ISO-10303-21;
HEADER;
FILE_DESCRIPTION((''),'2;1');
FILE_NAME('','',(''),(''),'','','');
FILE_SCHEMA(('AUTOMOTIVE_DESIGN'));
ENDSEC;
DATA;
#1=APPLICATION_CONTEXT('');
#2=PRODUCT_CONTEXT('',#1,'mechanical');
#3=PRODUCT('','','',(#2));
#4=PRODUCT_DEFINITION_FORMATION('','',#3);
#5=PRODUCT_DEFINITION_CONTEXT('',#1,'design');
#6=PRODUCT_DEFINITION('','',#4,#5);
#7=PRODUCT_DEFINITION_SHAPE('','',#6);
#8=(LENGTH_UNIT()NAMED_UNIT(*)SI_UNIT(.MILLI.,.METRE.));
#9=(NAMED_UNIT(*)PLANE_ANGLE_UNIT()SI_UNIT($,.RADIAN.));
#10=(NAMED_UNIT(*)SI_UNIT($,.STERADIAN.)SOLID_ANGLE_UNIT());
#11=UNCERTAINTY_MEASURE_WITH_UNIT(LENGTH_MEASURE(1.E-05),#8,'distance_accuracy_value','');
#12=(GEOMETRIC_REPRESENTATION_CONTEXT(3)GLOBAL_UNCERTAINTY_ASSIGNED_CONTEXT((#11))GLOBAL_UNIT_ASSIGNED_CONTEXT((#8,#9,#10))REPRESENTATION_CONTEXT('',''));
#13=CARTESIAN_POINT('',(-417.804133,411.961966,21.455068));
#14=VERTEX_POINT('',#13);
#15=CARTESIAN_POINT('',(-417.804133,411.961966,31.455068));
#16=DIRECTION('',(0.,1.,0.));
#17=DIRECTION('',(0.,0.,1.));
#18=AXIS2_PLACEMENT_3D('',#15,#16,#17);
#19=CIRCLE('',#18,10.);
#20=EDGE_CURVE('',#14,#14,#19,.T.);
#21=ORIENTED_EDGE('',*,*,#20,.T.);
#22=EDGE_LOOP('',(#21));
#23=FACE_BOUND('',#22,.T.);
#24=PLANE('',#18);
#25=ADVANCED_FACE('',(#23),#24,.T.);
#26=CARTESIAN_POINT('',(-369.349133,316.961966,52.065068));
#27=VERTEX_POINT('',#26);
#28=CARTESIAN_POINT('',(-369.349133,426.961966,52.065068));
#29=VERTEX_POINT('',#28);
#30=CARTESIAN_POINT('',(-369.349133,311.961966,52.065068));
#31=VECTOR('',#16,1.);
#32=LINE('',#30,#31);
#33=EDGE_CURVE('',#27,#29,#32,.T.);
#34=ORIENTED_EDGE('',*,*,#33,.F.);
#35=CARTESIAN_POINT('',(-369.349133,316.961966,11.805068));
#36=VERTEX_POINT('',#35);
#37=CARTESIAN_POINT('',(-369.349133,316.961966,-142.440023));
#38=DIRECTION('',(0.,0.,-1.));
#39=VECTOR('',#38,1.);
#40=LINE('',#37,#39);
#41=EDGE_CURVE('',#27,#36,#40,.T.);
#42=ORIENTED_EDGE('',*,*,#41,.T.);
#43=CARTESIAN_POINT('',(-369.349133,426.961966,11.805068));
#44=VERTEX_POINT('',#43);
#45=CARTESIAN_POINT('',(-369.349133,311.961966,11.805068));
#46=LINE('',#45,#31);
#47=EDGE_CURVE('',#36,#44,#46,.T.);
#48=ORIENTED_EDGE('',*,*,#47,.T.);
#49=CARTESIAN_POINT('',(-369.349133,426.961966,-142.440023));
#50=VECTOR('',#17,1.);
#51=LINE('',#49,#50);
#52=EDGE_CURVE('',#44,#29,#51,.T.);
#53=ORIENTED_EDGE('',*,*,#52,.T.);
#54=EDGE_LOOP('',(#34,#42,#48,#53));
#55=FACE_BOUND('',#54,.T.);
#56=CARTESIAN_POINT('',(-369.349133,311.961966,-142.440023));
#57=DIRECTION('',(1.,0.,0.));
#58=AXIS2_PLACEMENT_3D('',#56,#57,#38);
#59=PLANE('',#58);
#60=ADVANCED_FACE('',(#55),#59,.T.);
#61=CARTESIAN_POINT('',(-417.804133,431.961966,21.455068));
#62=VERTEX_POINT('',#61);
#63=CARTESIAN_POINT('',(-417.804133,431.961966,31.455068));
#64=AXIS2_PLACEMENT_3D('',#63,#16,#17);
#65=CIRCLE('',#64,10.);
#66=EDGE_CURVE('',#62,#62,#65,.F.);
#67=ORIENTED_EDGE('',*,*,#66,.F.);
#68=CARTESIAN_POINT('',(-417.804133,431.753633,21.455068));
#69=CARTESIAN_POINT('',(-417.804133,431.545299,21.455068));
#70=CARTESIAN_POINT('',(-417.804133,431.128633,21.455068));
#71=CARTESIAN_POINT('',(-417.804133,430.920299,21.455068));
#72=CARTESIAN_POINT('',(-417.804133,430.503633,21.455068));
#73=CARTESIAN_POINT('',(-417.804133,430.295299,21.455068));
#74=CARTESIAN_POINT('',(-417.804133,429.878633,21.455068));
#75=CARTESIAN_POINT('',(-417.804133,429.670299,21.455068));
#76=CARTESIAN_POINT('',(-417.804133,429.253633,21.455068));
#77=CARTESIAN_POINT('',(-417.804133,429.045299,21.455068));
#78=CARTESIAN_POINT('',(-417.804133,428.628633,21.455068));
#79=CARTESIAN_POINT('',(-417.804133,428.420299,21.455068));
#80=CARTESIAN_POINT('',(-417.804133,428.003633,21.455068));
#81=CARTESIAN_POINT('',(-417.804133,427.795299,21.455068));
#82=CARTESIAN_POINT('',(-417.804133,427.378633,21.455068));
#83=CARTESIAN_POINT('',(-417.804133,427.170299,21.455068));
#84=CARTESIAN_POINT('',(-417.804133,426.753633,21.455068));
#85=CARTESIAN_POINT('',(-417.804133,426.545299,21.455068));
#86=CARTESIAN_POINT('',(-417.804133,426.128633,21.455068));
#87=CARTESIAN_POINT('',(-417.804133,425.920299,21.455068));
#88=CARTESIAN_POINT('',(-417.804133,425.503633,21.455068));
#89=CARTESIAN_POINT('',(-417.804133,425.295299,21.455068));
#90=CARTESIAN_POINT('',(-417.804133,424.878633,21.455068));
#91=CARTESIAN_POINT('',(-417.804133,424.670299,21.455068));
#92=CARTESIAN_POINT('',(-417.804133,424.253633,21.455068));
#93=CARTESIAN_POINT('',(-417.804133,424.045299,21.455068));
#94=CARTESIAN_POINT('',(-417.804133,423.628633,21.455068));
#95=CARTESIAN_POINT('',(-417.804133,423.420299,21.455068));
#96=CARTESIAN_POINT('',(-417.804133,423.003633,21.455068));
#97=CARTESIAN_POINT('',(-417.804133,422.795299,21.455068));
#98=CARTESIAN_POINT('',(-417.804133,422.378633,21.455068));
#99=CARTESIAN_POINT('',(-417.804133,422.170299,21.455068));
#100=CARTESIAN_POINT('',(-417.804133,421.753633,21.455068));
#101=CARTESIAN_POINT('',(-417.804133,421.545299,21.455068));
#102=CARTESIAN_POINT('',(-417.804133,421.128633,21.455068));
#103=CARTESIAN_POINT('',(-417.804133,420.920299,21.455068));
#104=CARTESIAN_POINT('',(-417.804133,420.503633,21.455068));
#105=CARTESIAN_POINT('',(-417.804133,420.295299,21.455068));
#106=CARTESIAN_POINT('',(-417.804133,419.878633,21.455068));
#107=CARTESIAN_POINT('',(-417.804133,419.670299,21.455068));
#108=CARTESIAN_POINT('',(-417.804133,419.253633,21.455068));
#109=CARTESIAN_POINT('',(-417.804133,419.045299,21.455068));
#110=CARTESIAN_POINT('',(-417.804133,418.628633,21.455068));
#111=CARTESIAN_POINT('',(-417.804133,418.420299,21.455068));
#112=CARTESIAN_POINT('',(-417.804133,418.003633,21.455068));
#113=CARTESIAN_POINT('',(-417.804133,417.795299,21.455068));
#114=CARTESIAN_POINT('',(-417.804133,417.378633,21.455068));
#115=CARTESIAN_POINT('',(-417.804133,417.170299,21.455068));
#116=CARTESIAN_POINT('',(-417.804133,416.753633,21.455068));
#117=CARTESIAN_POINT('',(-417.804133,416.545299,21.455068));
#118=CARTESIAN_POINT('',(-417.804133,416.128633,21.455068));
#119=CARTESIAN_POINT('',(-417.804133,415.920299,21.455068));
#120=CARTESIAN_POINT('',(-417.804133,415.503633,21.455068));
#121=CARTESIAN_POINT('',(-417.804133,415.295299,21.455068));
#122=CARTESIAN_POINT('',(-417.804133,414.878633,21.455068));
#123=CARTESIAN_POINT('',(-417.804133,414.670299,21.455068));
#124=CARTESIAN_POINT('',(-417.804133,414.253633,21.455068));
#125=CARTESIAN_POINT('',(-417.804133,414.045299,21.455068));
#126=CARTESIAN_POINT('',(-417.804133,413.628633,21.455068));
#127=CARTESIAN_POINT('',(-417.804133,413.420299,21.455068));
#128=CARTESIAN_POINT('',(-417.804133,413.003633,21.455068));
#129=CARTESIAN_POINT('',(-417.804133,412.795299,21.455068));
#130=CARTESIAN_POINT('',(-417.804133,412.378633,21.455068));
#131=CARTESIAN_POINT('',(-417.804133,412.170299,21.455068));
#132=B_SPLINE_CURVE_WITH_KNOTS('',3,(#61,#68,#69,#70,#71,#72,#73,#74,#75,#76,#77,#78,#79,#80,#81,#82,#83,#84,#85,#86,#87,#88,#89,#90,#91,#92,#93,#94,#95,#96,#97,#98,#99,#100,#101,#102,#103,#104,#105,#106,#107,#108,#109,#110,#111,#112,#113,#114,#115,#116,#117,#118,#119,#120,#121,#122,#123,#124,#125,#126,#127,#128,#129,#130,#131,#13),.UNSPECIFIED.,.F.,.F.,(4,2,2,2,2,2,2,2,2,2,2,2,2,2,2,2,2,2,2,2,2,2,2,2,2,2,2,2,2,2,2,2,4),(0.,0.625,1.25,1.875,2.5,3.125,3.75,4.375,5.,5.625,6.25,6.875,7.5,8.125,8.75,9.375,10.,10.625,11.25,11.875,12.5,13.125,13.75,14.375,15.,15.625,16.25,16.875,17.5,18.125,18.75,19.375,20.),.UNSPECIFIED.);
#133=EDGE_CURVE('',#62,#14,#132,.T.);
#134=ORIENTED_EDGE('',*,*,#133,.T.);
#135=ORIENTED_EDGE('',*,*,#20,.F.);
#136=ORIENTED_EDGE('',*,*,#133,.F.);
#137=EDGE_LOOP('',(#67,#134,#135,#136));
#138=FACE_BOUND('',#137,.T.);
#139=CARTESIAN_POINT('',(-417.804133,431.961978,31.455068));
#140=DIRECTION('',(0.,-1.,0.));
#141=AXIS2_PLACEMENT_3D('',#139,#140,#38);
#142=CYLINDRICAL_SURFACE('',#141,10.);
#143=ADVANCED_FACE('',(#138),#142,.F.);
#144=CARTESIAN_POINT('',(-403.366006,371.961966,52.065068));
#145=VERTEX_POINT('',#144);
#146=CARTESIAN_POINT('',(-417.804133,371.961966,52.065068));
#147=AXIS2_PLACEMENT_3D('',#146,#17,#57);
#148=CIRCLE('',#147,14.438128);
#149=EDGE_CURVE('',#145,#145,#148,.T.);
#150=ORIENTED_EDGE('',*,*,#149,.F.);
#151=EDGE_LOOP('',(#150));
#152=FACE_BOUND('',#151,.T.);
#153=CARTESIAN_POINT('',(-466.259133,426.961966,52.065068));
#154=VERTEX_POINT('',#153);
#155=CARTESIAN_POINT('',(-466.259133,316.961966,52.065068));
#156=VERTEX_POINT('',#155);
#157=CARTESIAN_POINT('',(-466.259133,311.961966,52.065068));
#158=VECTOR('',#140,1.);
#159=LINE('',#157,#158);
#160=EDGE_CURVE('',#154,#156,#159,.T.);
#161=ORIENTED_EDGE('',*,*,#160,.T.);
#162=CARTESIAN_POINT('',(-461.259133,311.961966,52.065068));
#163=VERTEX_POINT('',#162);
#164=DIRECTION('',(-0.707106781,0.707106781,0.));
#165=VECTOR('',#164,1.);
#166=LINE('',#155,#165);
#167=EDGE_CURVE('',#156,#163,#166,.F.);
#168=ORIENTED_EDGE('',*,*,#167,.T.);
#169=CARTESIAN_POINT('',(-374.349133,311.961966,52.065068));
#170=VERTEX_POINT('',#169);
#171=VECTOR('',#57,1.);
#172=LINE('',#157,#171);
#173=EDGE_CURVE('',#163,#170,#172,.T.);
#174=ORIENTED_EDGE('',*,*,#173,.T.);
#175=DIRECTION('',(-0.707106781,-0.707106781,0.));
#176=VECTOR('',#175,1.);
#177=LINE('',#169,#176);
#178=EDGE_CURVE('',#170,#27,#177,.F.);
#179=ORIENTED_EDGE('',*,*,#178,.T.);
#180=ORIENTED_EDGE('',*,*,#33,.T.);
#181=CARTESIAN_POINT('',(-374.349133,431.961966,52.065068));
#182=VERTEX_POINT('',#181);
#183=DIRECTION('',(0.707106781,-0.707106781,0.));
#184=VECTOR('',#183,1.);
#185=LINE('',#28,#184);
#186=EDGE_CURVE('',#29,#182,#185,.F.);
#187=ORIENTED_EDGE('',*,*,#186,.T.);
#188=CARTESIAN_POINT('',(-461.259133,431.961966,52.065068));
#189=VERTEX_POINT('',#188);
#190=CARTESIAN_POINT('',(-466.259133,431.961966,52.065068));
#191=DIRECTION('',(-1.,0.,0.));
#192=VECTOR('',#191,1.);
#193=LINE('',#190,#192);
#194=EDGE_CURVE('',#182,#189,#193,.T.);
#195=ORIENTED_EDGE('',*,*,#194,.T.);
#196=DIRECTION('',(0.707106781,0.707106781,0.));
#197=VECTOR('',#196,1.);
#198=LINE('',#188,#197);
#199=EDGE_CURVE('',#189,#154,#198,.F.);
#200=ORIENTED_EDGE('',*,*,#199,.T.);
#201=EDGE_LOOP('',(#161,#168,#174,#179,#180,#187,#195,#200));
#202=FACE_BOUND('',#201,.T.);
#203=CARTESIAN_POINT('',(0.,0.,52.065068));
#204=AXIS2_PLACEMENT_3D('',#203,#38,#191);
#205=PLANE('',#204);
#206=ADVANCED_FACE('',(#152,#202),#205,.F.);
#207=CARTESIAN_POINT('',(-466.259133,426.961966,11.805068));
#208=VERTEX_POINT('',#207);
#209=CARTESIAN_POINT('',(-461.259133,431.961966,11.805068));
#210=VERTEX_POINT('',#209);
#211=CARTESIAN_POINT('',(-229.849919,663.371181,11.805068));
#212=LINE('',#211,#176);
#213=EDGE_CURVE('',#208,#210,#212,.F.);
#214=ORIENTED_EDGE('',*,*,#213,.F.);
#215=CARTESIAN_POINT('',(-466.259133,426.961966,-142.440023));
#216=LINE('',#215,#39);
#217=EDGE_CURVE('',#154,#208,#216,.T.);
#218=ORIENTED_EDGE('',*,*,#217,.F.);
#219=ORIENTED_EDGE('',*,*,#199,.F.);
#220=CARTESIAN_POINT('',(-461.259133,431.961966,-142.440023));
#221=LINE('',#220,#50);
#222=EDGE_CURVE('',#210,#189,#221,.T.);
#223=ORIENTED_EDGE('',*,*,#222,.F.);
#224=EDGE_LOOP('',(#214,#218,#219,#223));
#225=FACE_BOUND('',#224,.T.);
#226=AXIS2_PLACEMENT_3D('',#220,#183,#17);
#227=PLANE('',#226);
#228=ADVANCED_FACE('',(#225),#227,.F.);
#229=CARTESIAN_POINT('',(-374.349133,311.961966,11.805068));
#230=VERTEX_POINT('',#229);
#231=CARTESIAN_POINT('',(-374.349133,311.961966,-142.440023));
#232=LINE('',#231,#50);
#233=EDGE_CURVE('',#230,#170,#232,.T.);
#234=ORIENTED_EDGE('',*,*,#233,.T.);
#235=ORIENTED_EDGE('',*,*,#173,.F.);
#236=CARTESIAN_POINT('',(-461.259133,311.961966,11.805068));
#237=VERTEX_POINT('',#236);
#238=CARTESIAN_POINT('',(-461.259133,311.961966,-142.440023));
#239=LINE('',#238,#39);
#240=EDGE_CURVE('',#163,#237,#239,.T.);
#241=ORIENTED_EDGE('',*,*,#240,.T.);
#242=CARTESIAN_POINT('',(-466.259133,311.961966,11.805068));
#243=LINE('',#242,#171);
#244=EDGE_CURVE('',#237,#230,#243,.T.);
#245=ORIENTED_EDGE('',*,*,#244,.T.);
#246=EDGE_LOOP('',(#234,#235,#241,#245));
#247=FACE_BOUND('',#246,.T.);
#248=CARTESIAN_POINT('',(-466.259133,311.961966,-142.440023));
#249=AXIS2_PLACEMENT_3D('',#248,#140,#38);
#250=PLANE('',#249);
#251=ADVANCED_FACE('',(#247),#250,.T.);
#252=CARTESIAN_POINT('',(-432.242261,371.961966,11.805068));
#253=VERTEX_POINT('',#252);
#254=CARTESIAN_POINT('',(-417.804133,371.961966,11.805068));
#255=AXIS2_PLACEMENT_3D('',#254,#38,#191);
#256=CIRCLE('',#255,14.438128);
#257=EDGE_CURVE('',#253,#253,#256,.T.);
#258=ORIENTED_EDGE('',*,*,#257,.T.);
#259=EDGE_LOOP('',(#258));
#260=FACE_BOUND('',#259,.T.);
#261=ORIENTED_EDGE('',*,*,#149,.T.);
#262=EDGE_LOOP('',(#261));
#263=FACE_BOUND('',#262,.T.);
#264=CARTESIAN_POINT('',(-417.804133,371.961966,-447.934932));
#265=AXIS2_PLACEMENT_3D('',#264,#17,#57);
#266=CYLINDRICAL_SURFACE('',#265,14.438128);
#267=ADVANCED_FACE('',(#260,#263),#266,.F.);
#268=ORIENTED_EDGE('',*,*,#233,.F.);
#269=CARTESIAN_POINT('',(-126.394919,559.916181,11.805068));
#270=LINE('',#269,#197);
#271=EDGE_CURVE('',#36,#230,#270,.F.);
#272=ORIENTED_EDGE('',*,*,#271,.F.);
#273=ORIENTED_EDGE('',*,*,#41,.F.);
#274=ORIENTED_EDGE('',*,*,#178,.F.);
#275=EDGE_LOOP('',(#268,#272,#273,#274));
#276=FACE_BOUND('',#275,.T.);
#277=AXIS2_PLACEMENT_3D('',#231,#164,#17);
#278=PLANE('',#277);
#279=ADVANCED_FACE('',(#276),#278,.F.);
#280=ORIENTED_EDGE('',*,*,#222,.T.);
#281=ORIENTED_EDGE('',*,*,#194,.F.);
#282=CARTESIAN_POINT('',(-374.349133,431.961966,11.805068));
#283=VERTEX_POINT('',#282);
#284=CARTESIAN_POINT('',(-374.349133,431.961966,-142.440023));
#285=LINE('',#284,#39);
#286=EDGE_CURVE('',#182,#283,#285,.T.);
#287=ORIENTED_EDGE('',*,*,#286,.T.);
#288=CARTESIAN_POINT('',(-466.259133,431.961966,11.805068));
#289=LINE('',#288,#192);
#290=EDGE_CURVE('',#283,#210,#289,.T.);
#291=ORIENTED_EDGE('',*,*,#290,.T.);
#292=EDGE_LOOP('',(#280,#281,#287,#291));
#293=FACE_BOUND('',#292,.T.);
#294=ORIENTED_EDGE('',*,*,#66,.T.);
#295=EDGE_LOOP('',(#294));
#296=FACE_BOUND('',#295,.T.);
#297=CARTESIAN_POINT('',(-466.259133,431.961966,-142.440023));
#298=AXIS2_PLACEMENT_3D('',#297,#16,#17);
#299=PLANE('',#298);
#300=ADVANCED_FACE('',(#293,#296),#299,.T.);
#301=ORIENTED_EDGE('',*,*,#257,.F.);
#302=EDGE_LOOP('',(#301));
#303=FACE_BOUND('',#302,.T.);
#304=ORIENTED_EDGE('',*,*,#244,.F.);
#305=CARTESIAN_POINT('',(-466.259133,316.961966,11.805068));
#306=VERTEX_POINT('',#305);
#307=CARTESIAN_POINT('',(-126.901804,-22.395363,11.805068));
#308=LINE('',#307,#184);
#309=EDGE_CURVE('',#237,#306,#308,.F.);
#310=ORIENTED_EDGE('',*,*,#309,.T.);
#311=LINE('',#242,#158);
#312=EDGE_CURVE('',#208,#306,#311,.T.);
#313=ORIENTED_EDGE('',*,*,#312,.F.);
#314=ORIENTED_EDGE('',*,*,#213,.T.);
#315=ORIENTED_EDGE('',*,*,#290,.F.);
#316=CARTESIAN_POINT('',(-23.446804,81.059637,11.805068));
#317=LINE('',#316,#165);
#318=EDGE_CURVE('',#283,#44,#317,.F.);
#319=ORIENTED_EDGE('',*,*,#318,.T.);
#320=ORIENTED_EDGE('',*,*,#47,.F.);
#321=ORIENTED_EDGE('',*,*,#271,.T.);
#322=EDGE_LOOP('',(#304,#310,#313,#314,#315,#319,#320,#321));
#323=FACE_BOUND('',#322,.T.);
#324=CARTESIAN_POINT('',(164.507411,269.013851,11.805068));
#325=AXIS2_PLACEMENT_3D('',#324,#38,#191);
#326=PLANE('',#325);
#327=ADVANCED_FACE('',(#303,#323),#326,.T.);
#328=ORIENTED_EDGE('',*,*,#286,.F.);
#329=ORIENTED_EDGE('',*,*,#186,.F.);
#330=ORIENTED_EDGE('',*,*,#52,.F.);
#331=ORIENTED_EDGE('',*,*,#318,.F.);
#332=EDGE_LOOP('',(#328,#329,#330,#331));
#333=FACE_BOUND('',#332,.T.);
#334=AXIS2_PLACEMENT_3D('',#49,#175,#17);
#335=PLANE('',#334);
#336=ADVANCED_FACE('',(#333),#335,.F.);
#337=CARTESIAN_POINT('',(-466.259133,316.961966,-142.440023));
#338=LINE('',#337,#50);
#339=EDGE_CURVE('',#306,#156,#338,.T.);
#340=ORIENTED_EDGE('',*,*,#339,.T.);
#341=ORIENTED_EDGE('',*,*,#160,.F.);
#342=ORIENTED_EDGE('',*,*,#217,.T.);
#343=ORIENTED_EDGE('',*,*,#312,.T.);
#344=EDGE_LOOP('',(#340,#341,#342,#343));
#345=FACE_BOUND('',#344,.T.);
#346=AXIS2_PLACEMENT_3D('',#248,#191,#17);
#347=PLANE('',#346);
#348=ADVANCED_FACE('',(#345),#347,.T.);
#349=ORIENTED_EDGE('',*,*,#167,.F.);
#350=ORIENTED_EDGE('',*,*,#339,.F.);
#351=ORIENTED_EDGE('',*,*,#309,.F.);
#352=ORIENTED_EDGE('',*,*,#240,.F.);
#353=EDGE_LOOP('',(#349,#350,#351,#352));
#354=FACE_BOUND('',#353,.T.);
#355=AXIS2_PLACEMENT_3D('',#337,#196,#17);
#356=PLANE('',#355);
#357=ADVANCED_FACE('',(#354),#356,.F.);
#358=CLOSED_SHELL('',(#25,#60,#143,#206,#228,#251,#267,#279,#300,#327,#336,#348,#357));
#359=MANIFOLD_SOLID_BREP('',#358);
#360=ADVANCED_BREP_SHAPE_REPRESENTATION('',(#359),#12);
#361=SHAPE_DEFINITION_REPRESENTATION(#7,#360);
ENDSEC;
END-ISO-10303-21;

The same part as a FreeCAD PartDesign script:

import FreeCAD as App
import Part
import Sketcher
from FreeCAD import Vector


def edges_at(feature, points):
    """Names of the edges that pass closest to the given points."""
    edges = feature.Shape.Edges
    near = lambda p: min(range(len(edges)), key=lambda i: edges[i].distToShape(Part.Vertex(*p))[0])
    return sorted({f"Edge{near(p) + 1}" for p in points})

doc = App.newDocument("Part")
params = doc.addObject("Spreadsheet::Sheet", "Params")
for row, (alias, value) in enumerate([
    ("sketch1_height", "120 mm"),
    ("sketch1_width", "96.91 mm"),
    ("pad1_length", "40.26 mm"),
    ("sketch2_diameter", "20 mm"),
    ("sketch3_diameter", "20 mm"),
    ("pocket2_length", "485.260623 mm"),
    ("pocket2_length2", "20 mm"),
    ("chamfer_size", "5 mm"),
    ("pocket3_length", "500 mm"),
], start=1):
    params.set(f"A{row}", alias)
    params.set(f"B{row}", "=" + value)
    params.setAlias(f"B{row}", alias)

body = doc.addObject("PartDesign::Body", "Body")

# Sketch on XY plane
sketch1 = body.newObject("Sketcher::SketchObject", "Sketch")
sketch1.AttachmentSupport = (doc.getObject("XY_Plane"), [""])
sketch1.MapMode = "FlatFace"
sketch1.AttachmentOffset = App.Placement(Vector(0, 0, 52.065068), App.Rotation())
sketch1.addGeometry([
    Part.LineSegment(Vector(-466.259133, 431.961966, 0), Vector(-466.259133, 311.961966, 0)),
    Part.LineSegment(Vector(-466.259133, 311.961966, 0), Vector(-369.349133, 311.961966, 0)),
    Part.LineSegment(Vector(-369.349133, 311.961966, 0), Vector(-369.349133, 431.961966, 0)),
    Part.LineSegment(Vector(-369.349133, 431.961966, 0), Vector(-466.259133, 431.961966, 0)),
], False)
sketch1.addConstraint([
    Sketcher.Constraint("Coincident", 0, 2, 1, 1),
    Sketcher.Constraint("Coincident", 1, 2, 2, 1),
    Sketcher.Constraint("Coincident", 2, 2, 3, 1),
    Sketcher.Constraint("Coincident", 3, 2, 0, 1),
    Sketcher.Constraint("Vertical", 0),
    Sketcher.Constraint("Horizontal", 1),
    Sketcher.Constraint("Vertical", 2),
    Sketcher.Constraint("Horizontal", 3),
    Sketcher.Constraint("DistanceY", 0, 2, 0, 1, 120.0),
    Sketcher.Constraint("DistanceX", 1, 1, 1, 2, 96.91),
    Sketcher.Constraint("DistanceX", 0, 2, -1, 1, 466.259133),
    Sketcher.Constraint("DistanceY", -1, 1, 0, 2, 311.961966),
])
sketch1.setExpression("Constraints[8]", "Params.sketch1_height")
sketch1.setExpression("Constraints[9]", "Params.sketch1_width")
pad1 = body.newObject("PartDesign::Pad", "Pad")
pad1.Profile = sketch1
pad1.setExpression("Length", "Params.pad1_length")
pad1.Reversed = True

# Sketch on XY plane
sketch2 = body.newObject("Sketcher::SketchObject", "Sketch001")
sketch2.AttachmentSupport = (doc.getObject("XY_Plane"), [""])
sketch2.MapMode = "FlatFace"
sketch2.AttachmentOffset = App.Placement(Vector(0, 0, 52.065068), App.Rotation())
sketch2.addGeometry([
    Part.Circle(Vector(-417.804133, 371.961966, 0), Vector(0, 0, 1), 10),
    Part.Circle(Vector(-494.338767, 524.64029, 0), Vector(0, 0, 1), 10),
], False)
sketch2.addConstraint([
    Sketcher.Constraint("Equal", 0, 1),
    Sketcher.Constraint("Diameter", 0, 20.0),
    Sketcher.Constraint("DistanceY", -1, 1, 1, 3, 524.64029),
    Sketcher.Constraint("DistanceX", 0, 3, -1, 1, 417.804133),
    Sketcher.Constraint("DistanceY", -1, 1, 0, 3, 371.961966),
    Sketcher.Constraint("DistanceX", 1, 3, -1, 1, 494.338767),
])
sketch2.setExpression("Constraints[1]", "Params.sketch2_diameter")
pocket1 = body.newObject("PartDesign::Pocket", "Pocket")
pocket1.Profile = sketch2
pocket1.Type = "ThroughAll"
pocket1.Midplane = True

# Sketch on XZ plane
sketch3 = body.newObject("Sketcher::SketchObject", "Sketch002")
sketch3.AttachmentSupport = (doc.getObject("XZ_Plane"), [""])
sketch3.MapMode = "FlatFace"
sketch3.AttachmentOffset = App.Placement(Vector(0, 0, -431.961966), App.Rotation())
sketch3.addGeometry(Part.Circle(Vector(-417.804133, 31.455068, 0), Vector(0, 0, 1), 10), False)
sketch3.addConstraint([
    Sketcher.Constraint("Diameter", 0, 20.0),
    Sketcher.Constraint("DistanceX", 0, 3, -1, 1, 417.804133),
    Sketcher.Constraint("DistanceY", -1, 1, 0, 3, 31.455068),
])
sketch3.setExpression("Constraints[0]", "Params.sketch3_diameter")
pocket2 = body.newObject("PartDesign::Pocket", "Pocket001")
pocket2.Profile = sketch3
pocket2.Type = "TwoLengths"
pocket2.setExpression("Length", "Params.pocket2_length")
pocket2.setExpression("Length2", "Params.pocket2_length2")
doc.recompute()

chamfer = body.newObject("PartDesign::Chamfer", "Chamfer")
chamfer.Base = (pocket2, edges_at(pocket2, [
    (-369.349, 311.962, 31.935),
    (-369.349, 431.962, 31.935),
    (-466.259, 431.962, 31.935),
    (-466.259, 311.962, 31.935),
]))
chamfer.setExpression("Size", "Params.chamfer_size")

# Sketch on XY plane
sketch4 = body.newObject("Sketcher::SketchObject", "Sketch003")
sketch4.AttachmentSupport = (doc.getObject("XY_Plane"), [""])
sketch4.MapMode = "FlatFace"
sketch4.AttachmentOffset = App.Placement(Vector(0, 0, 52.065068), App.Rotation())
sketch4.addGeometry(Part.Circle(Vector(-417.804133, 371.961966, 0), Vector(0, 0, 1), 14.438128), False)
sketch4.addConstraint([
    Sketcher.Constraint("Diameter", 0, 28.876255),
    Sketcher.Constraint("DistanceX", 0, 3, -1, 1, 417.804133),
    Sketcher.Constraint("DistanceY", -1, 1, 0, 3, 371.961966),
])
pocket3 = body.newObject("PartDesign::Pocket", "Pocket002")
pocket3.Profile = sketch4
pocket3.setExpression("Length", "Params.pocket3_length")

doc.recompute()
